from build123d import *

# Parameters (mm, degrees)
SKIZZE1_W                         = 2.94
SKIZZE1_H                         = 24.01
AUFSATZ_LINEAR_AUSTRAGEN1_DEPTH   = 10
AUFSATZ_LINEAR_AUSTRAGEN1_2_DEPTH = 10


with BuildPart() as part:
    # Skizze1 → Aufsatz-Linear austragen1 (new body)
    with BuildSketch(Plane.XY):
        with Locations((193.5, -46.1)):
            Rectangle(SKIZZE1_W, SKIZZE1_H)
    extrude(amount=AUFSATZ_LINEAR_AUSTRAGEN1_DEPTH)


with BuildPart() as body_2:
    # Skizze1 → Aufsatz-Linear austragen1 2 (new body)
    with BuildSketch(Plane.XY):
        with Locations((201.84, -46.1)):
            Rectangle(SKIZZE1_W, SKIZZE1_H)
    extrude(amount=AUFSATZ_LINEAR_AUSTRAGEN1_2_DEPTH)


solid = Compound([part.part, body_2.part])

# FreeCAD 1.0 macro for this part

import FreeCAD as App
import Part
import Sketcher

V = App.Vector


def add_polygon(sketch, points):
    """Adds a closed chain of lines whose ends are joined by coincident constraints."""
    first, n = sketch.GeometryCount, len(points)
    for a, b in zip(points, points[1:] + points[:1]):
        sketch.addGeometry(Part.LineSegment(App.Vector(*a, 0), App.Vector(*b, 0)), False)
    for i in range(n):
        sketch.addConstraint(Sketcher.Constraint("Coincident", first + i, 2, first + (i + 1) % n, 1))

doc = App.newDocument("Part")
body = doc.addObject("PartDesign::Body", "Body")

sketch1 = doc.addObject("Sketcher::SketchObject", "Sketch")
body.addObject(sketch1)
sketch1.AttachmentSupport = (doc.XY_Plane, [""])
sketch1.MapMode = "FlatFace"
add_polygon(sketch1, [(192.03, -34.095), (192.03, -58.105), (194.97, -58.105), (194.97, -34.095)])
sketch1.addConstraint([
    Sketcher.Constraint("Vertical", 0),
    Sketcher.Constraint("Horizontal", 1),
    Sketcher.Constraint("Vertical", 2),
    Sketcher.Constraint("Horizontal", 3),
    Sketcher.Constraint("DistanceX", 1, 1, 1, 2, 2.94),
    Sketcher.Constraint("DistanceY", 0, 2, 0, 1, 24.01),
    Sketcher.Constraint("DistanceX", -1, 1, 0, 2, 192.03),
    Sketcher.Constraint("DistanceY", 0, 2, -1, 1, 58.105),
])
pad1 = doc.addObject("PartDesign::Pad", "Pad")
body.addObject(pad1)
pad1.Profile = sketch1
pad1.Length = 10
body2 = doc.addObject("PartDesign::Body", "Body001")

sketch2 = doc.addObject("Sketcher::SketchObject", "Sketch001")
body2.addObject(sketch2)
sketch2.AttachmentSupport = (doc.getObject("XY_Plane001"), [""])
sketch2.MapMode = "FlatFace"
add_polygon(sketch2, [(200.37, -34.095), (200.37, -58.105), (203.31, -58.105), (203.31, -34.095)])
sketch2.addConstraint([
    Sketcher.Constraint("Vertical", 0),
    Sketcher.Constraint("Horizontal", 1),
    Sketcher.Constraint("Vertical", 2),
    Sketcher.Constraint("Horizontal", 3),
    Sketcher.Constraint("DistanceX", 1, 1, 1, 2, 2.94),
    Sketcher.Constraint("DistanceY", 0, 2, 0, 1, 24.01),
    Sketcher.Constraint("DistanceX", -1, 1, 0, 2, 200.37),
    Sketcher.Constraint("DistanceY", 0, 2, -1, 1, 58.105),
])
pad2 = doc.addObject("PartDesign::Pad", "Pad001")
body2.addObject(pad2)
pad2.Profile = sketch2
pad2.Length = 10

doc.recompute()
